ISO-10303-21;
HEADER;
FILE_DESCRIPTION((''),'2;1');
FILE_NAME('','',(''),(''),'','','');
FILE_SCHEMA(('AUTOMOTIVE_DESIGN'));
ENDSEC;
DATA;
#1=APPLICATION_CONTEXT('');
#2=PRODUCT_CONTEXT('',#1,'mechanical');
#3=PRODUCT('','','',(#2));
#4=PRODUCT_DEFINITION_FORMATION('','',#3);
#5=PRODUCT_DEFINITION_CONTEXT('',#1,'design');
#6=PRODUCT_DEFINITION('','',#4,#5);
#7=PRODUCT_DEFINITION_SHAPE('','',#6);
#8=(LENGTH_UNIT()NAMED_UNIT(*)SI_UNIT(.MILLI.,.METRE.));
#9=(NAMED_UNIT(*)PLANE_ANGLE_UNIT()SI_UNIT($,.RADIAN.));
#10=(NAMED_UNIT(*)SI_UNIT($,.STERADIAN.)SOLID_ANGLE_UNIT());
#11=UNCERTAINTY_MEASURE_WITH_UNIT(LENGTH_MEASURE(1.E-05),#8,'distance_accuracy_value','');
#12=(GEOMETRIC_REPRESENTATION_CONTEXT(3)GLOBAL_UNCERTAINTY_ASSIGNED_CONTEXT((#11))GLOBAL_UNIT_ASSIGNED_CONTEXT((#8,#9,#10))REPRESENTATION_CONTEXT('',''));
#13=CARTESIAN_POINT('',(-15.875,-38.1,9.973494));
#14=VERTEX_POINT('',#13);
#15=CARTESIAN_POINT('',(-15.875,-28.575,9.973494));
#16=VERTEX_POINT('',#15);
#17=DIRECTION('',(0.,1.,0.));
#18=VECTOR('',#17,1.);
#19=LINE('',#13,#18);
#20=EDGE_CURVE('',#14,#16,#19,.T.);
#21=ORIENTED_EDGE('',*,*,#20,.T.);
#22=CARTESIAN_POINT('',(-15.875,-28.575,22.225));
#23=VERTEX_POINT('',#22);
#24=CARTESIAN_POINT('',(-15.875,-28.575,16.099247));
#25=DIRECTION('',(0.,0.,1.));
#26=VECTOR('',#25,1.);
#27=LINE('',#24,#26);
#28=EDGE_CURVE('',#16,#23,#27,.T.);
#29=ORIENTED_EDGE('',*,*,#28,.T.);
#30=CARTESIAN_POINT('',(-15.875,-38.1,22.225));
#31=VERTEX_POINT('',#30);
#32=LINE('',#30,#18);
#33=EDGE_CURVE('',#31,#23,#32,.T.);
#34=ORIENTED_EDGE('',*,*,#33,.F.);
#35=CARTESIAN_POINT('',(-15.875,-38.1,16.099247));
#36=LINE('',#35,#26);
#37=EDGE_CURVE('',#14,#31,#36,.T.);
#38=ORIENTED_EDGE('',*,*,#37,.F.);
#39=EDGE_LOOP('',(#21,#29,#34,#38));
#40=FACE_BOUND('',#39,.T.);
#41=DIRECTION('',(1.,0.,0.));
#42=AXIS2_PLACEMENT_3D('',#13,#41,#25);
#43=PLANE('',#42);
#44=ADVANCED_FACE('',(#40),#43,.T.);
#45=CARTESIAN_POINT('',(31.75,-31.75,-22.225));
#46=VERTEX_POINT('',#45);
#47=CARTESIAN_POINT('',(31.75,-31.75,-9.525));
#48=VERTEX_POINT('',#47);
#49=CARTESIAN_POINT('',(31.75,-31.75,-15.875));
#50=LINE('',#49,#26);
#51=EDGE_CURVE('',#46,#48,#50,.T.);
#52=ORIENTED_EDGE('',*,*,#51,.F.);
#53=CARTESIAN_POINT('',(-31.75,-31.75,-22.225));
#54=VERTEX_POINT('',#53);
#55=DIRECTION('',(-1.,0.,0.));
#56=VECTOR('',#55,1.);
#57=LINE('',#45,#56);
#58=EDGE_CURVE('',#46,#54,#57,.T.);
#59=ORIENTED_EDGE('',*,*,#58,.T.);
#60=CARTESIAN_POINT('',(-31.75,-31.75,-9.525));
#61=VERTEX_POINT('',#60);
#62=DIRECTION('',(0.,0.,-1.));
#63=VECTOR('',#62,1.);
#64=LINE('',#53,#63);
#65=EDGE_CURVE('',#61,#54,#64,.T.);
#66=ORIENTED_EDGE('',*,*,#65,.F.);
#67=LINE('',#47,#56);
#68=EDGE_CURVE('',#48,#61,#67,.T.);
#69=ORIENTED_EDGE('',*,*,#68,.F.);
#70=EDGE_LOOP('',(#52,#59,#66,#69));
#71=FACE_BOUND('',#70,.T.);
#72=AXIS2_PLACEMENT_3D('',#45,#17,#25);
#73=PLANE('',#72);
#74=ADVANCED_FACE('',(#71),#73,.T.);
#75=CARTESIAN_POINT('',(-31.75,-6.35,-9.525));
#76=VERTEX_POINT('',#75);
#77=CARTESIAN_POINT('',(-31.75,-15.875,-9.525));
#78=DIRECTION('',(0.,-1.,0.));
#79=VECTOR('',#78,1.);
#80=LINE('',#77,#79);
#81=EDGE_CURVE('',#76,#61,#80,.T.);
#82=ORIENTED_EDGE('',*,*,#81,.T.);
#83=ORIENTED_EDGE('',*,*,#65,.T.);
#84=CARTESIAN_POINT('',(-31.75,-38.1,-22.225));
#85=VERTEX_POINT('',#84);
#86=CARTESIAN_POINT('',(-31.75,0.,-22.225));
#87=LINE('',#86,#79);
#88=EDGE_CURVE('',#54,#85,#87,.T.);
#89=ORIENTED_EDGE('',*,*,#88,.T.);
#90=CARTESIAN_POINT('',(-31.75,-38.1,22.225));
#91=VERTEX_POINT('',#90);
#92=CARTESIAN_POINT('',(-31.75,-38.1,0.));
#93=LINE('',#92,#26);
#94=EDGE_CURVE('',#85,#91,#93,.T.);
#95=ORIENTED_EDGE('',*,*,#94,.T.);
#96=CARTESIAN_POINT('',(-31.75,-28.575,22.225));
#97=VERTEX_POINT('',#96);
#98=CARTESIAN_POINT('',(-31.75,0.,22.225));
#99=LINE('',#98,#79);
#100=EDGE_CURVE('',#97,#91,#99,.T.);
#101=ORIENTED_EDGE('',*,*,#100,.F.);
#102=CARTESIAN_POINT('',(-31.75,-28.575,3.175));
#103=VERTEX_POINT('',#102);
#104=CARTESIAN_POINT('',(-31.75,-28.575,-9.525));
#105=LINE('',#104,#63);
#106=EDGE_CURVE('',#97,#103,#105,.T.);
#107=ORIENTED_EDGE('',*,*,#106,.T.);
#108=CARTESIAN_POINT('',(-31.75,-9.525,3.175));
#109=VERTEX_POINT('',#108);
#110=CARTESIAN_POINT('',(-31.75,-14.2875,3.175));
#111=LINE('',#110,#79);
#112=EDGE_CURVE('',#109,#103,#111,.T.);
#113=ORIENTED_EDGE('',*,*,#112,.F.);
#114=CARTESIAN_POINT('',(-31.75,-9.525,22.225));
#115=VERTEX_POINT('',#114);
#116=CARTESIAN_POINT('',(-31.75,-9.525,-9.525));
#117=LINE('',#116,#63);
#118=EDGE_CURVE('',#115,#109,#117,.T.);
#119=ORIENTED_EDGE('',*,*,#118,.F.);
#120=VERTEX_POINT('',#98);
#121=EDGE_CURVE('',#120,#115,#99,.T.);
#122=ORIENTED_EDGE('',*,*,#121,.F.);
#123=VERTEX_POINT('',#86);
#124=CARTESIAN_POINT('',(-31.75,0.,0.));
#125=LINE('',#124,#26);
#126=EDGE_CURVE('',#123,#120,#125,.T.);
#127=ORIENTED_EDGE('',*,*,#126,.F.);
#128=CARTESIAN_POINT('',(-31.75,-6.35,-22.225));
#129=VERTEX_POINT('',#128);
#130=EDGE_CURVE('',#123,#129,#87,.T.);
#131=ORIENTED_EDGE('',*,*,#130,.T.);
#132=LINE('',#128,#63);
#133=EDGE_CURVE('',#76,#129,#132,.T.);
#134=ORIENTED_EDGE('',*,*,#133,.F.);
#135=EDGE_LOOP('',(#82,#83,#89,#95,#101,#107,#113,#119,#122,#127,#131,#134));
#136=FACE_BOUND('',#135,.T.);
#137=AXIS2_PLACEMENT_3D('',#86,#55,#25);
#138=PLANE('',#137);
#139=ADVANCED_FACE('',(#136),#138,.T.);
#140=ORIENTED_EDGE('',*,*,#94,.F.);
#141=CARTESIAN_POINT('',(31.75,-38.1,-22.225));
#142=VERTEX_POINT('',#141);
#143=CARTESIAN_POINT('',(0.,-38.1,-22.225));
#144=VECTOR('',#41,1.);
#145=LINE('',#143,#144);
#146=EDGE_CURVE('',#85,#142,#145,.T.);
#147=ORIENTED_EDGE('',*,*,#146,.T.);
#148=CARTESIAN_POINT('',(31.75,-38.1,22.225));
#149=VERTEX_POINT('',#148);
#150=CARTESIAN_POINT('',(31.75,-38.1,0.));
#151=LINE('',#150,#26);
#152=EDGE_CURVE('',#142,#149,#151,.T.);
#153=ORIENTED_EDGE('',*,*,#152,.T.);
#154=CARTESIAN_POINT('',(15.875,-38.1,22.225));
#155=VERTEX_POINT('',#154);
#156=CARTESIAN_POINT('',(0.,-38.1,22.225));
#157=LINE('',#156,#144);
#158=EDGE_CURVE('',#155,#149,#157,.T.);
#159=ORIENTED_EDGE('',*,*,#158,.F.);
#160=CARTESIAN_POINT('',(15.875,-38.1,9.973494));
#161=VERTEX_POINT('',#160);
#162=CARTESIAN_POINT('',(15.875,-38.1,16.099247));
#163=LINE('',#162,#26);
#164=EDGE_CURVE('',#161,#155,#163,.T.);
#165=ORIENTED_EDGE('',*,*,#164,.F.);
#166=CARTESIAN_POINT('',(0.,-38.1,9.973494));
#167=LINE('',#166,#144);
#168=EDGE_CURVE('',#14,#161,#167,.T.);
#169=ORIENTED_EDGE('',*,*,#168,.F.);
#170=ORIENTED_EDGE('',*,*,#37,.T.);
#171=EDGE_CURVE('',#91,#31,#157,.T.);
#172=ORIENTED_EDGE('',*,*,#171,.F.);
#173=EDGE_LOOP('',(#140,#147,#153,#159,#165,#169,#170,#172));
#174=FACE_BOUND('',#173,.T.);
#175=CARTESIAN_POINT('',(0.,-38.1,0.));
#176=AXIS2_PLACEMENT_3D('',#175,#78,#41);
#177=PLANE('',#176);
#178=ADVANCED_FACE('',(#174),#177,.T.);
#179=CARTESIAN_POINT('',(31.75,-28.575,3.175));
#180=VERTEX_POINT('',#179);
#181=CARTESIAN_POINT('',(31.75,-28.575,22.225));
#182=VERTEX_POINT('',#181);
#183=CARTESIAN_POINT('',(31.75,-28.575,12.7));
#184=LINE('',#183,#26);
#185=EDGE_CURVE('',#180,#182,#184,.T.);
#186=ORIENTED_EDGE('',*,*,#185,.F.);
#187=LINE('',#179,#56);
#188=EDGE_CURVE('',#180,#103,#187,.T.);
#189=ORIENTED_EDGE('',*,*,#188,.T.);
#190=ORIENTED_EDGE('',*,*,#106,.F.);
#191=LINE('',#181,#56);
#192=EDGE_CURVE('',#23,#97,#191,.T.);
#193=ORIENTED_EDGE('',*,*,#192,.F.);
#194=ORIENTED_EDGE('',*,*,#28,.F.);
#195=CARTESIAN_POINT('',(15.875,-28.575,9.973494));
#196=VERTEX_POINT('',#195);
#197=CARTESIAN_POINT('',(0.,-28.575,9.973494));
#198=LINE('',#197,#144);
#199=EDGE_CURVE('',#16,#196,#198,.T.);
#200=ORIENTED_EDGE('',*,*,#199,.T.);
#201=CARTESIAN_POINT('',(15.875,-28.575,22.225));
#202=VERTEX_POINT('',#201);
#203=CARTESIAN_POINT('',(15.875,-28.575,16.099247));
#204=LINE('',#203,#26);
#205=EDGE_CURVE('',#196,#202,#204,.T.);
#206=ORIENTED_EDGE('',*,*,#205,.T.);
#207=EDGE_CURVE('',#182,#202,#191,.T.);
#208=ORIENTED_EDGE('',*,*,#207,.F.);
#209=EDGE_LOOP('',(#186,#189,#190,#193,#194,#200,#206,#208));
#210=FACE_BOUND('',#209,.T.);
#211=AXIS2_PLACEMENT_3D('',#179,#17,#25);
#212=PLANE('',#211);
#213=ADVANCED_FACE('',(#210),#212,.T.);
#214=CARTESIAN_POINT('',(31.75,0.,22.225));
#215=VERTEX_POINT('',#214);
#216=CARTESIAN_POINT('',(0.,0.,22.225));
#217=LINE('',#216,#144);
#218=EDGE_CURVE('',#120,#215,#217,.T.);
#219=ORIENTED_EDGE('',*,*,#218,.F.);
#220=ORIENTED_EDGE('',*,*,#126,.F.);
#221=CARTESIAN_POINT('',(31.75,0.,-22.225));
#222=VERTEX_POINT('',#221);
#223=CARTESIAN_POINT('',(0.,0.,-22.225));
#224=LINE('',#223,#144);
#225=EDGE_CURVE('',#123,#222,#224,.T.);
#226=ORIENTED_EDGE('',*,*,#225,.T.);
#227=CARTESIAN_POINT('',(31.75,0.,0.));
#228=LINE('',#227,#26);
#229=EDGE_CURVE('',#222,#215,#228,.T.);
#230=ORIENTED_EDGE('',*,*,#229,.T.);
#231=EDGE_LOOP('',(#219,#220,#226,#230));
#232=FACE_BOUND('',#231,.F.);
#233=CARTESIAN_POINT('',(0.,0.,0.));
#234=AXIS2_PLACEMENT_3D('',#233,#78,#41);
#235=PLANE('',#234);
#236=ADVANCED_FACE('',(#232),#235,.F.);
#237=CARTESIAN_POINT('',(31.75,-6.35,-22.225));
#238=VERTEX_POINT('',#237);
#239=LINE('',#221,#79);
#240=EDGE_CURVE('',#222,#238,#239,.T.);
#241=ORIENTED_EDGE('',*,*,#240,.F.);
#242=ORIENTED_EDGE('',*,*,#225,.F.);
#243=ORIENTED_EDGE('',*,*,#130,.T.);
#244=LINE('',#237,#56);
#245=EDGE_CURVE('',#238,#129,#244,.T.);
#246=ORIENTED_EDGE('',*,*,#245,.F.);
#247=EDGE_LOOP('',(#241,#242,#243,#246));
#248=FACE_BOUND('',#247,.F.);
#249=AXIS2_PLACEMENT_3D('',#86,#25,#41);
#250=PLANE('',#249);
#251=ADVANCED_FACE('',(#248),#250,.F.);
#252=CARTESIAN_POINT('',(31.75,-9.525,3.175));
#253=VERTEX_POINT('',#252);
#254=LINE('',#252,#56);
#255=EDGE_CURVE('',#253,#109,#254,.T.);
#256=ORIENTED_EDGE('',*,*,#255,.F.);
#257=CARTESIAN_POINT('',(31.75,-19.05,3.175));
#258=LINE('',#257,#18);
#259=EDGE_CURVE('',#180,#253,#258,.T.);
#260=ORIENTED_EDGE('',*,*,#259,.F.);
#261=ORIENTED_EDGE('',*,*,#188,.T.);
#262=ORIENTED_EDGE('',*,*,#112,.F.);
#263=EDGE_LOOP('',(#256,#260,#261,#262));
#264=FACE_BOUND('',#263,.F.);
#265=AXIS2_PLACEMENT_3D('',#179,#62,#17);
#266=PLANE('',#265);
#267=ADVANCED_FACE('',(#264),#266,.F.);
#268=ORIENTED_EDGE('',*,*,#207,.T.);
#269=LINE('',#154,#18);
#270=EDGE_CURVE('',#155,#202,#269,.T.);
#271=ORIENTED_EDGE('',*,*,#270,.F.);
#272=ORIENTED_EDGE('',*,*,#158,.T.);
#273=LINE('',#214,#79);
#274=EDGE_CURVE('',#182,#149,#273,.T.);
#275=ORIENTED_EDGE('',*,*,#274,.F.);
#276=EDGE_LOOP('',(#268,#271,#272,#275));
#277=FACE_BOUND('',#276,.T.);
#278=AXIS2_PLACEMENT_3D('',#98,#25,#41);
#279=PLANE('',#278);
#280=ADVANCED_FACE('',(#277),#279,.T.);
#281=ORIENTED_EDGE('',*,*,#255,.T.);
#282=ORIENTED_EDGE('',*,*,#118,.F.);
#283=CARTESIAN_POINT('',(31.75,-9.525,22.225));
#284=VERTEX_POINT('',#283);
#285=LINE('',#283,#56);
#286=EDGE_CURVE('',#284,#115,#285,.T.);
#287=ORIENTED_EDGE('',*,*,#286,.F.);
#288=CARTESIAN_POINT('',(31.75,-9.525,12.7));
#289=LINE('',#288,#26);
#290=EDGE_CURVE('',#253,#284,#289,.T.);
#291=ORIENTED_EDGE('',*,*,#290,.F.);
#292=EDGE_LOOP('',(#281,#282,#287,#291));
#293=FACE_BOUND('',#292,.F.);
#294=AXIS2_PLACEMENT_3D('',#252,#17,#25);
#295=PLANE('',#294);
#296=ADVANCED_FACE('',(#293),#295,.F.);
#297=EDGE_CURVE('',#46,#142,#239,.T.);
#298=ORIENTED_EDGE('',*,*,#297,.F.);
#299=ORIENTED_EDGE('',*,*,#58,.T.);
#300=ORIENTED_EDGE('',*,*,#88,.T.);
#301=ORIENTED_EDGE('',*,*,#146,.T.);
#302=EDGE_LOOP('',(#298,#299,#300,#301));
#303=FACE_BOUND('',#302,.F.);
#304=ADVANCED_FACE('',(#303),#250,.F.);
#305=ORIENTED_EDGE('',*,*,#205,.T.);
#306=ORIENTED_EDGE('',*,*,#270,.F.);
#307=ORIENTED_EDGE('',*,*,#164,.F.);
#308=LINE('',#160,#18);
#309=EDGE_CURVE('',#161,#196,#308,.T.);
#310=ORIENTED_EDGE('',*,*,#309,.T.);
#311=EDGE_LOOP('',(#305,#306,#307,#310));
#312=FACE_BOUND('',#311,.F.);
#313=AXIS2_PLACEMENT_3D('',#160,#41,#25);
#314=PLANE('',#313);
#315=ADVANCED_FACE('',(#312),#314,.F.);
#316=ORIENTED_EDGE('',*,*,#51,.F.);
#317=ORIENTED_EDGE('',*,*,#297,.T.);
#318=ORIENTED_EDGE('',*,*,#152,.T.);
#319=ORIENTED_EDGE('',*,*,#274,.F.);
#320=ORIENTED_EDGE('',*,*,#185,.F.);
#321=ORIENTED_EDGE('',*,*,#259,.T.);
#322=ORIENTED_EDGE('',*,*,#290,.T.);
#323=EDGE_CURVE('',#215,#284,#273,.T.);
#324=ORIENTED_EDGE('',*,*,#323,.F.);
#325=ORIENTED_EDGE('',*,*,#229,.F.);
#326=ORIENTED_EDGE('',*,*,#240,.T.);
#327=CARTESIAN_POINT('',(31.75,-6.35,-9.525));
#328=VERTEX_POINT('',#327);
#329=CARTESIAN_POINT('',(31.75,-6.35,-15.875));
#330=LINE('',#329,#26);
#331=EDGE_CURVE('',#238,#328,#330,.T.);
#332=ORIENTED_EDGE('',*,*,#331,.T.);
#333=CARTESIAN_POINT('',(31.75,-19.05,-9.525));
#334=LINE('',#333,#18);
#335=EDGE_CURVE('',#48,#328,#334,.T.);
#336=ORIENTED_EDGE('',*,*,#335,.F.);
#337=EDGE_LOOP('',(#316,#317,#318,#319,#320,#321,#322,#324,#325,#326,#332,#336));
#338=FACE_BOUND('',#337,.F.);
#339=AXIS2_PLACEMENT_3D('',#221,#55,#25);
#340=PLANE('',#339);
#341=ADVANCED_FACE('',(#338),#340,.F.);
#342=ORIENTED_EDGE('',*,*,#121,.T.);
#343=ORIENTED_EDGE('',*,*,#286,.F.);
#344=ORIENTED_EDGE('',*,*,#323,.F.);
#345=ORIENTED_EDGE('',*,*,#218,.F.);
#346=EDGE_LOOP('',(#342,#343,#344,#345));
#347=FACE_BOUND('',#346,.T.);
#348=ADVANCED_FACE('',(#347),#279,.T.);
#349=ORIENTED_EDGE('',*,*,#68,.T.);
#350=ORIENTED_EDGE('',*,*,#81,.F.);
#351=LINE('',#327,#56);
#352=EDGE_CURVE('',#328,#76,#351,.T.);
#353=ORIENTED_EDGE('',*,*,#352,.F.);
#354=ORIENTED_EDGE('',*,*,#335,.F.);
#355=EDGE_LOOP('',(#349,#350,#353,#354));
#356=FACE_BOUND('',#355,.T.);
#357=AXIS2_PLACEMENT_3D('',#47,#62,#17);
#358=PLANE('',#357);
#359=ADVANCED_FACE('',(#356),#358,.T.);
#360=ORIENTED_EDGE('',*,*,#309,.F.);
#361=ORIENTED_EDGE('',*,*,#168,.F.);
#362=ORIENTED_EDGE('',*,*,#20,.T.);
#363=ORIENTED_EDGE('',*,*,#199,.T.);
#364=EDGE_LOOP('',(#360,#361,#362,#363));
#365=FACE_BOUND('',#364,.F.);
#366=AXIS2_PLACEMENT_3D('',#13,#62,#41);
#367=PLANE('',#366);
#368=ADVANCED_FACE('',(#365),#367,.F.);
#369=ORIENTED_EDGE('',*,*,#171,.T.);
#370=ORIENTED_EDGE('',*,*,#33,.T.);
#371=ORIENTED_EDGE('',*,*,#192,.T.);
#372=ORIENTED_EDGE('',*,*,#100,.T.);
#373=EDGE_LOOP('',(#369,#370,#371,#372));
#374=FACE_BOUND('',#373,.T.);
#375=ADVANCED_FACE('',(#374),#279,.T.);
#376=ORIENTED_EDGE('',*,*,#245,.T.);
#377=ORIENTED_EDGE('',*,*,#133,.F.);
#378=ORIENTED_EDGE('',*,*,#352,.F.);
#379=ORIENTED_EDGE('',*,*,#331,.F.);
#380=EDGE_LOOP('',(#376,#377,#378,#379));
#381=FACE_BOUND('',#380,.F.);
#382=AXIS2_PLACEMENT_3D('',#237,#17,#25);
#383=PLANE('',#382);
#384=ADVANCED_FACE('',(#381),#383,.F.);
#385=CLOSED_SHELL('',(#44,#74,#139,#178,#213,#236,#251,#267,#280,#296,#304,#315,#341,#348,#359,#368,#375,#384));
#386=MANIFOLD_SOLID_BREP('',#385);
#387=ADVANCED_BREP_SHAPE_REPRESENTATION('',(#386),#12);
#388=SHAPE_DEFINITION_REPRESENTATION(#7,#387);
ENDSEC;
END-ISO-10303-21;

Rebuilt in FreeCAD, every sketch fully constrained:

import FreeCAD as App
import Part
import Sketcher
Q = App.Units.Quantity

doc = App.newDocument("Part")
body = doc.addObject("PartDesign::Body", "Body")

sketch1 = body.newObject("Sketcher::SketchObject", "Sketch")
sketch1.AttachmentSupport = (doc.getObject("XZ_Plane"), [""])
sketch1.MapMode = "FlatFace"
sketch1.addGeometry(Part.LineSegment(App.Vector(-32, 22, 0), App.Vector(-32, -22, 0)), False)
sketch1.addGeometry(Part.LineSegment(App.Vector(-32, -22, 0), App.Vector(32, -22, 0)), False)
sketch1.addGeometry(Part.LineSegment(App.Vector(32, -22, 0), App.Vector(32, 22, 0)), False)
sketch1.addGeometry(Part.LineSegment(App.Vector(32, 22, 0), App.Vector(-32, 22, 0)), False)
sketch1.addConstraint(Sketcher.Constraint("Coincident", 0, 2, 1, 1))
sketch1.addConstraint(Sketcher.Constraint("Coincident", 1, 2, 2, 1))
sketch1.addConstraint(Sketcher.Constraint("Coincident", 2, 2, 3, 1))
sketch1.addConstraint(Sketcher.Constraint("Coincident", 3, 2, 0, 1))
sketch1.addConstraint(Sketcher.Constraint("Vertical", 0))
sketch1.addConstraint(Sketcher.Constraint("Horizontal", 1))
sketch1.addConstraint(Sketcher.Constraint("Vertical", 2))
sketch1.addConstraint(Sketcher.Constraint("Horizontal", 3))
sketch1.addConstraint(Sketcher.Constraint("Symmetric", 0, 2, 2, 2, -1, 1))
sketch1.addConstraint(Sketcher.Constraint("DistanceX", 1, 1, 1, 2, Q("2.5 in")))
sketch1.addConstraint(Sketcher.Constraint("DistanceY", 0, 2, 0, 1, Q("1.75 in")))
pad1 = body.newObject("PartDesign::Pad", "Pad")
pad1.Profile = sketch1
pad1.Length = Q("1.5 in")

sketch2 = body.newObject("Sketcher::SketchObject", "Sketch001")
sketch2.AttachmentSupport = (doc.getObject("YZ_Plane"), [""])
sketch2.MapMode = "FlatFace"
sketch2.AttachmentOffset = App.Placement(App.Vector(0, 0, 1.25 * 25.4), App.Rotation())
sketch2.addGeometry(Part.LineSegment(App.Vector(-29, 22, 0), App.Vector(-29, 3, 0)), False)
sketch2.addGeometry(Part.LineSegment(App.Vector(-29, 3, 0), App.Vector(-10, 3, 0)), False)
sketch2.addGeometry(Part.LineSegment(App.Vector(-10, 3, 0), App.Vector(-10, 22, 0)), False)
sketch2.addGeometry(Part.LineSegment(App.Vector(-10, 22, 0), App.Vector(-29, 22, 0)), False)
sketch2.addConstraint(Sketcher.Constraint("Coincident", 0, 2, 1, 1))
sketch2.addConstraint(Sketcher.Constraint("Coincident", 1, 2, 2, 1))
sketch2.addConstraint(Sketcher.Constraint("Coincident", 2, 2, 3, 1))
sketch2.addConstraint(Sketcher.Constraint("Coincident", 3, 2, 0, 1))
sketch2.addConstraint(Sketcher.Constraint("Vertical", 0))
sketch2.addConstraint(Sketcher.Constraint("Horizontal", 1))
sketch2.addConstraint(Sketcher.Constraint("Vertical", 2))
sketch2.addConstraint(Sketcher.Constraint("Horizontal", 3))
sketch2.addConstraint(Sketcher.Constraint("Equal", 3, 0))
sketch2.addConstraint(Sketcher.Constraint("DistanceX", 1, 1, 1, 2, Q("0.75 in")))
sketch2.addConstraint(Sketcher.Constraint("DistanceX", 0, 2, -1, 1, Q("1.125 in")))
sketch2.addConstraint(Sketcher.Constraint("DistanceY", -1, 1, 0, 2, Q("0.125 in")))
pocket1 = body.newObject("PartDesign::Pocket", "Pocket")
pocket1.Profile = sketch2
pocket1.Type = "ThroughAll"

sketch3 = body.newObject("Sketcher::SketchObject", "Sketch002")
sketch3.AttachmentSupport = (doc.getObject("XZ_Plane"), [""])
sketch3.MapMode = "FlatFace"
sketch3.AttachmentOffset = App.Placement(App.Vector(0, 0, 1.5 * 25.4), App.Rotation())
sketch3.addGeometry(Part.LineSegment(App.Vector(-16, 22, 0), App.Vector(-16, 10, 0)), False)
sketch3.addGeometry(Part.LineSegment(App.Vector(-16, 10, 0), App.Vector(16, 10, 0)), False)
sketch3.addGeometry(Part.LineSegment(App.Vector(16, 10, 0), App.Vector(16, 22, 0)), False)
sketch3.addGeometry(Part.LineSegment(App.Vector(16, 22, 0), App.Vector(-16, 22, 0)), False)
sketch3.addConstraint(Sketcher.Constraint("Coincident", 0, 2, 1, 1))
sketch3.addConstraint(Sketcher.Constraint("Coincident", 1, 2, 2, 1))
sketch3.addConstraint(Sketcher.Constraint("Coincident", 2, 2, 3, 1))
sketch3.addConstraint(Sketcher.Constraint("Coincident", 3, 2, 0, 1))
sketch3.addConstraint(Sketcher.Constraint("Vertical", 0))
sketch3.addConstraint(Sketcher.Constraint("Horizontal", 1))
sketch3.addConstraint(Sketcher.Constraint("Vertical", 2))
sketch3.addConstraint(Sketcher.Constraint("Horizontal", 3))
sketch3.addConstraint(Sketcher.Constraint("DistanceX", 1, 1, 1, 2, Q("1.25 in")))
sketch3.addConstraint(Sketcher.Constraint("DistanceX", 0, 2, -1, 1, Q("0.625 in")))
sketch3.addConstraint(Sketcher.Constraint("DistanceY", -1, 1, 2, 2, Q("0.875 in")))
sketch3.addConstraint(Sketcher.Constraint("DistanceY", 0, 2, 0, 1, 12.251506))
pocket2 = body.newObject("PartDesign::Pocket", "Pocket001")
pocket2.Profile = sketch3
pocket2.Length = Q("0.375 in")

sketch4 = body.newObject("Sketcher::SketchObject", "Sketch003")
sketch4.AttachmentSupport = (doc.getObject("YZ_Plane"), [""])
sketch4.MapMode = "FlatFace"
sketch4.AttachmentOffset = App.Placement(App.Vector(0, 0, 1.25 * 25.4), App.Rotation())
sketch4.addGeometry(Part.LineSegment(App.Vector(-32, -10, 0), App.Vector(-32, -22, 0)), False)
sketch4.addGeometry(Part.LineSegment(App.Vector(-32, -22, 0), App.Vector(-6, -22, 0)), False)
sketch4.addGeometry(Part.LineSegment(App.Vector(-6, -22, 0), App.Vector(-6, -10, 0)), False)
sketch4.addGeometry(Part.LineSegment(App.Vector(-6, -10, 0), App.Vector(-32, -10, 0)), False)
sketch4.addConstraint(Sketcher.Constraint("Coincident", 0, 2, 1, 1))
sketch4.addConstraint(Sketcher.Constraint("Coincident", 1, 2, 2, 1))
sketch4.addConstraint(Sketcher.Constraint("Coincident", 2, 2, 3, 1))
sketch4.addConstraint(Sketcher.Constraint("Coincident", 3, 2, 0, 1))
sketch4.addConstraint(Sketcher.Constraint("Vertical", 0))
sketch4.addConstraint(Sketcher.Constraint("Horizontal", 1))
sketch4.addConstraint(Sketcher.Constraint("Vertical", 2))
sketch4.addConstraint(Sketcher.Constraint("Horizontal", 3))
sketch4.addConstraint(Sketcher.Constraint("DistanceX", 1, 1, 1, 2, Q("1 in")))
sketch4.addConstraint(Sketcher.Constraint("DistanceY", 0, 2, 0, 1, Q("0.5 in")))
sketch4.addConstraint(Sketcher.Constraint("DistanceX", 0, 2, -1, 1, Q("1.25 in")))
sketch4.addConstraint(Sketcher.Constraint("DistanceY", 0, 2, -1, 1, Q("0.875 in")))
pocket3 = body.newObject("PartDesign::Pocket", "Pocket002")
pocket3.Profile = sketch4
pocket3.Type = "ThroughAll"

doc.recompute()
